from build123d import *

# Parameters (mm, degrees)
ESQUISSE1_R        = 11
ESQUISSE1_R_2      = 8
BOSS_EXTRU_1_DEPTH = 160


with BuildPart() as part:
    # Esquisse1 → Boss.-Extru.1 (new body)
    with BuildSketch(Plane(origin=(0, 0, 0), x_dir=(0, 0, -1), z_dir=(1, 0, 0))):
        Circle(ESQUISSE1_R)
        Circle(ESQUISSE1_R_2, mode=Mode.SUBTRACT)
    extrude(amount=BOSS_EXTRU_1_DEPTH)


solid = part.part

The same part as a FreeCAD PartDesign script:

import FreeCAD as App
import Part
import Sketcher
Q = App.Units.Quantity

doc = App.newDocument("Part")
params = doc.addObject("Spreadsheet::Sheet", "Params")
for row, (alias, value) in enumerate([
    ("sketch1_diameter", "22 mm"),
    ("sketch1_diameter2", "16 mm"),
    ("pad1_length", "160 mm"),
], start=1):
    params.set(f"A{row}", alias)
    params.set(f"B{row}", "=" + value)
    params.setAlias(f"B{row}", alias)

body = doc.addObject("PartDesign::Body", "Body")

# Sketch on YZ plane
sketch1 = body.newObject("Sketcher::SketchObject", "Sketch")
sketch1.AttachmentSupport = (doc.getObject("YZ_Plane"), [""])
sketch1.MapMode = "FlatFace"
sketch1.addGeometry(Part.Circle(App.Vector(0, 0, 0), App.Vector(0, 0, 1), 11), False)
sketch1.addGeometry(Part.Circle(App.Vector(0, 0, 0), App.Vector(0, 0, 1), 8), False)
sketch1.addConstraint(Sketcher.Constraint("Coincident", 0, 3, -1, 1))
sketch1.addConstraint(Sketcher.Constraint("Coincident", 1, 3, -1, 1))
sketch1.addConstraint(Sketcher.Constraint("Diameter", 0, Q("22 mm")))
sketch1.addConstraint(Sketcher.Constraint("Diameter", 1, Q("16 mm")))
sketch1.setExpression("Constraints[2]", "Params.sketch1_diameter")
sketch1.setExpression("Constraints[3]", "Params.sketch1_diameter2")
pad1 = body.newObject("PartDesign::Pad", "Pad")
pad1.Profile = sketch1
pad1.setExpression("Length", "Params.pad1_length")

doc.recompute()
